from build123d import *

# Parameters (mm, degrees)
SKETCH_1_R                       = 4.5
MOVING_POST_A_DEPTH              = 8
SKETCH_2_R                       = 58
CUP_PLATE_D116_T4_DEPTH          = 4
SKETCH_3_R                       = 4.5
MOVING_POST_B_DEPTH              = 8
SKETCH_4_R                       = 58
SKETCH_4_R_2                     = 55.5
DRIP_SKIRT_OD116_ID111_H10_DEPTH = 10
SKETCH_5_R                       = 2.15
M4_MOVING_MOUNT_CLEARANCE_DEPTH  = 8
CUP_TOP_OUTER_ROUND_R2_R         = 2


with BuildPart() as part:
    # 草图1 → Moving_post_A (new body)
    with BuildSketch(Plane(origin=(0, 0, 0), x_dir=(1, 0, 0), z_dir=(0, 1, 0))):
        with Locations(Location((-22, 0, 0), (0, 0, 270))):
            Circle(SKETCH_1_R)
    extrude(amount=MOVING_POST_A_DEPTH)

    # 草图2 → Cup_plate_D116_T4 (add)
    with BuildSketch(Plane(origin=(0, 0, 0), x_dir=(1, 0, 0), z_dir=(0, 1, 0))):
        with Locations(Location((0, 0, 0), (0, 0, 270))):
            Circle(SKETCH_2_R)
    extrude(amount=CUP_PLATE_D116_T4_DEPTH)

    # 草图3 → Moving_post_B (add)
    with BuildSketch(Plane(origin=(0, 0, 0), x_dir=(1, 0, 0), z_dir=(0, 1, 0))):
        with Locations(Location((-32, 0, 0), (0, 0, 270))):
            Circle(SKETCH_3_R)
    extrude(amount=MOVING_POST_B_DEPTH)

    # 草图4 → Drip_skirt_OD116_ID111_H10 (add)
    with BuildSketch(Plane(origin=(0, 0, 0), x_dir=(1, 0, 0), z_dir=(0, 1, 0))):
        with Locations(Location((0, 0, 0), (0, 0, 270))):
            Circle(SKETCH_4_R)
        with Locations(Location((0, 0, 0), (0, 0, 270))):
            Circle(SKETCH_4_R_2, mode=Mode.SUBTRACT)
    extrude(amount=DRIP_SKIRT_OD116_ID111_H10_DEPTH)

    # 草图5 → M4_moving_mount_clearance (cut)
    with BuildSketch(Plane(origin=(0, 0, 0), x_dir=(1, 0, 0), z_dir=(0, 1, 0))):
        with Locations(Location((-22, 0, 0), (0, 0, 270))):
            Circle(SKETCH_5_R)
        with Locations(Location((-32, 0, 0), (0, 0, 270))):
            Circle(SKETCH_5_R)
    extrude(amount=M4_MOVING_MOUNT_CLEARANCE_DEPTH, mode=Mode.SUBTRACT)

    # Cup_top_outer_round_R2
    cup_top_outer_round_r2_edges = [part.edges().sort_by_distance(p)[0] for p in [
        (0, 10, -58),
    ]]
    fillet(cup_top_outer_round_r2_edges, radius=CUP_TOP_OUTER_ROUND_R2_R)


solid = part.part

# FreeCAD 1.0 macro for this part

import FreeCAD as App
import Part
import Sketcher


def edges_at(feature, points):
    """Names of the edges that pass closest to the given points."""
    edges = feature.Shape.Edges
    near = lambda p: min(range(len(edges)), key=lambda i: edges[i].distToShape(Part.Vertex(*p))[0])
    return sorted({f"Edge{near(p) + 1}" for p in points})

doc = App.newDocument("Part")
body = doc.addObject("PartDesign::Body", "Body")

# Sketch on XZ plane
sketch1 = body.newObject("Sketcher::SketchObject", "Sketch")
sketch1.AttachmentSupport = (doc.getObject("XZ_Plane"), [""])
sketch1.MapMode = "FlatFace"
sketch1.addGeometry(Part.Circle(App.Vector(-22, 0, 0), App.Vector(0, 0, 1), 4.5), False)
sketch1.addConstraint([
    Sketcher.Constraint("PointOnObject", 0, 3, -1),
    Sketcher.Constraint("Diameter", 0, 9.0),
    Sketcher.Constraint("DistanceX", 0, 3, -1, 1, 22.0),
])
pad1 = body.newObject("PartDesign::Pad", "Pad")
pad1.Profile = sketch1
pad1.Length = 8
pad1.Reversed = True

# Sketch on XZ plane
sketch2 = body.newObject("Sketcher::SketchObject", "Sketch001")
sketch2.AttachmentSupport = (doc.getObject("XZ_Plane"), [""])
sketch2.MapMode = "FlatFace"
sketch2.addGeometry(Part.Circle(App.Vector(0, 0, 0), App.Vector(0, 0, 1), 58), False)
sketch2.addConstraint([
    Sketcher.Constraint("Coincident", 0, 3, -1, 1),
    Sketcher.Constraint("Diameter", 0, 116.0),
])
pad2 = body.newObject("PartDesign::Pad", "Pad001")
pad2.Profile = sketch2
pad2.Length = 4
pad2.Reversed = True

# Sketch on XZ plane
sketch3 = body.newObject("Sketcher::SketchObject", "Sketch002")
sketch3.AttachmentSupport = (doc.getObject("XZ_Plane"), [""])
sketch3.MapMode = "FlatFace"
sketch3.addGeometry(Part.Circle(App.Vector(-32, 0, 0), App.Vector(0, 0, 1), 4.5), False)
sketch3.addConstraint([
    Sketcher.Constraint("PointOnObject", 0, 3, -1),
    Sketcher.Constraint("Diameter", 0, 9.0),
    Sketcher.Constraint("DistanceX", 0, 3, -1, 1, 32.0),
])
pad3 = body.newObject("PartDesign::Pad", "Pad002")
pad3.Profile = sketch3
pad3.Length = 8
pad3.Reversed = True

# Sketch on XZ plane
sketch4 = body.newObject("Sketcher::SketchObject", "Sketch003")
sketch4.AttachmentSupport = (doc.getObject("XZ_Plane"), [""])
sketch4.MapMode = "FlatFace"
sketch4.addGeometry([
    Part.Circle(App.Vector(0, 0, 0), App.Vector(0, 0, 1), 58),
    Part.Circle(App.Vector(0, 0, 0), App.Vector(0, 0, 1), 56),
], False)
sketch4.addConstraint([
    Sketcher.Constraint("Coincident", 0, 3, -1, 1),
    Sketcher.Constraint("Coincident", 1, 3, -1, 1),
    Sketcher.Constraint("Diameter", 0, 116.0),
    Sketcher.Constraint("Diameter", 1, 111.0),
])
pad4 = body.newObject("PartDesign::Pad", "Pad003")
pad4.Profile = sketch4
pad4.Length = 10
pad4.Reversed = True

# Sketch on XZ plane
sketch5 = body.newObject("Sketcher::SketchObject", "Sketch004")
sketch5.AttachmentSupport = (doc.getObject("XZ_Plane"), [""])
sketch5.MapMode = "FlatFace"
sketch5.addGeometry([
    Part.Circle(App.Vector(-22, 0, 0), App.Vector(0, 0, 1), 2.1),
    Part.Circle(App.Vector(-32, 0, 0), App.Vector(0, 0, 1), 2.1),
], False)
sketch5.addConstraint([
    Sketcher.Constraint("Equal", 0, 1),
    Sketcher.Constraint("PointOnObject", 0, 3, -1),
    Sketcher.Constraint("PointOnObject", 1, 3, -1),
    Sketcher.Constraint("Diameter", 0, 4.3),
    Sketcher.Constraint("DistanceX", 0, 3, -1, 1, 22.0),
    Sketcher.Constraint("DistanceX", 1, 3, -1, 1, 32.0),
])
pocket1 = body.newObject("PartDesign::Pocket", "Pocket")
pocket1.Profile = sketch5
pocket1.Length = 8
doc.recompute()

fillet = body.newObject("PartDesign::Fillet", "Fillet")
fillet.Base = (pocket1, edges_at(pocket1, [(0, 10, -58)]))
fillet.Radius = 2

doc.recompute()
